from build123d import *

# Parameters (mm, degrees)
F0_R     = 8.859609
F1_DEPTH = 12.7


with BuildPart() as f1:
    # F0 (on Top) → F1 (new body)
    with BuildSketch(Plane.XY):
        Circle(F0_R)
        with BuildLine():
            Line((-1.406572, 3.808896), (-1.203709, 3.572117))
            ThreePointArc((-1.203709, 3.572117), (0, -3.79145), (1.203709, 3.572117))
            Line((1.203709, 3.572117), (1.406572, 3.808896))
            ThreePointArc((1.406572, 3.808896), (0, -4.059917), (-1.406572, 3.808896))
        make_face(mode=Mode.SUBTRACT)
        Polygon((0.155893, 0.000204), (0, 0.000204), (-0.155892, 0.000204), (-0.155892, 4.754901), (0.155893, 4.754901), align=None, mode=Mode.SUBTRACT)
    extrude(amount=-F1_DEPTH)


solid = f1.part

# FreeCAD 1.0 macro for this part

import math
import FreeCAD as App
import Part
import Sketcher
Q = App.Units.Quantity


def add_polygon(sketch, points):
    """Adds a closed chain of lines whose ends are joined by coincident constraints."""
    first, n = sketch.GeometryCount, len(points)
    for a, b in zip(points, points[1:] + points[:1]):
        sketch.addGeometry(Part.LineSegment(App.Vector(*a, 0), App.Vector(*b, 0)), False)
    for i in range(n):
        sketch.addConstraint(Sketcher.Constraint("Coincident", first + i, 2, first + (i + 1) % n, 1))

doc = App.newDocument("Part")
body = doc.addObject("PartDesign::Body", "Body")

# Sketch on XY plane
sketch1 = doc.addObject("Sketcher::SketchObject", "Sketch")
body.addObject(sketch1)
sketch1.AttachmentSupport = (doc.XY_Plane, [""])
sketch1.MapMode = "FlatFace"
sketch1.addGeometry(Part.Circle(App.Vector(0, 0, 0), App.Vector(0, 0, 1), 8.86), False)  # 0
sketch1.addGeometry(Part.ArcOfCircle(Part.Circle(App.Vector(0, 0, 0), App.Vector(0, 0, 1), 4.06), math.radians(110), math.radians(430)), False)  # 1
sketch1.addGeometry(Part.LineSegment(App.Vector(-1.41, 3.81, 0), App.Vector(-1.2, 3.57, 0)), False)  # 2
sketch1.addGeometry(Part.ArcOfCircle(Part.Circle(App.Vector(0, -0.01, 0), App.Vector(0, 0, 1), 3.78), math.radians(109), math.radians(431)), False)  # 3
sketch1.addGeometry(Part.LineSegment(App.Vector(1.2, 3.57, 0), App.Vector(1.41, 3.81, 0)), False)  # 4
add_polygon(sketch1, [(0.16, 4.75), (0.16, 0), (-0.16, 0), (-0.16, 4.75)])  # lines 5-8
sketch1.addConstraint(Sketcher.Constraint("Coincident", 1, 1, 2, 1))
sketch1.addConstraint(Sketcher.Constraint("Coincident", 2, 2, 3, 1))
sketch1.addConstraint(Sketcher.Constraint("Coincident", 3, 2, 4, 1))
sketch1.addConstraint(Sketcher.Constraint("Coincident", 4, 2, 1, 2))
sketch1.addConstraint(Sketcher.Constraint("Vertical", 5))
sketch1.addConstraint(Sketcher.Constraint("Horizontal", 6))
sketch1.addConstraint(Sketcher.Constraint("Vertical", 7))
sketch1.addConstraint(Sketcher.Constraint("Horizontal", 8))
sketch1.addConstraint(Sketcher.Constraint("Coincident", 0, 3, -1, 1))
sketch1.addConstraint(Sketcher.Constraint("Symmetric", 2, 2, 3, 2, -2))
sketch1.addConstraint(Sketcher.Constraint("Symmetric", 1, 1, 4, 2, -2))
sketch1.addConstraint(Sketcher.Constraint("Horizontal", 1, 3, 5, 2))
sketch1.addConstraint(Sketcher.Constraint("Diameter", 0, 17.719218))
sketch1.addConstraint(Sketcher.Constraint("Radius", 1, 4.060121))
sketch1.addConstraint(Sketcher.Constraint("Radius", 3, 3.780168))
sketch1.addConstraint(Sketcher.Constraint("DistanceY", -1, 1, 7, 2, 4.754901))
sketch1.addConstraint(Sketcher.Constraint("DistanceY", 3, 3, 2, 2, 3.583399))
sketch1.addConstraint(Sketcher.Constraint("DistanceX", 7, 2, 3, 2, 1.359601))
sketch1.addConstraint(Sketcher.Constraint("DistanceX", 6, 2, 6, 1, 0.311785))
sketch1.addConstraint(Sketcher.Constraint("DistanceY", 5, 2, 5, 1, 4.754697))
sketch1.addConstraint(Sketcher.Constraint("DistanceX", -1, 1, 4, 2, 1.406572))
sketch1.addConstraint(Sketcher.Constraint("DistanceY", 3, 3, 1, 1, 3.820178))
pad1 = doc.addObject("PartDesign::Pad", "Pad")
body.addObject(pad1)
pad1.Profile = sketch1
pad1.Length = Q("0.5 in")
pad1.Reversed = True

doc.recompute()
